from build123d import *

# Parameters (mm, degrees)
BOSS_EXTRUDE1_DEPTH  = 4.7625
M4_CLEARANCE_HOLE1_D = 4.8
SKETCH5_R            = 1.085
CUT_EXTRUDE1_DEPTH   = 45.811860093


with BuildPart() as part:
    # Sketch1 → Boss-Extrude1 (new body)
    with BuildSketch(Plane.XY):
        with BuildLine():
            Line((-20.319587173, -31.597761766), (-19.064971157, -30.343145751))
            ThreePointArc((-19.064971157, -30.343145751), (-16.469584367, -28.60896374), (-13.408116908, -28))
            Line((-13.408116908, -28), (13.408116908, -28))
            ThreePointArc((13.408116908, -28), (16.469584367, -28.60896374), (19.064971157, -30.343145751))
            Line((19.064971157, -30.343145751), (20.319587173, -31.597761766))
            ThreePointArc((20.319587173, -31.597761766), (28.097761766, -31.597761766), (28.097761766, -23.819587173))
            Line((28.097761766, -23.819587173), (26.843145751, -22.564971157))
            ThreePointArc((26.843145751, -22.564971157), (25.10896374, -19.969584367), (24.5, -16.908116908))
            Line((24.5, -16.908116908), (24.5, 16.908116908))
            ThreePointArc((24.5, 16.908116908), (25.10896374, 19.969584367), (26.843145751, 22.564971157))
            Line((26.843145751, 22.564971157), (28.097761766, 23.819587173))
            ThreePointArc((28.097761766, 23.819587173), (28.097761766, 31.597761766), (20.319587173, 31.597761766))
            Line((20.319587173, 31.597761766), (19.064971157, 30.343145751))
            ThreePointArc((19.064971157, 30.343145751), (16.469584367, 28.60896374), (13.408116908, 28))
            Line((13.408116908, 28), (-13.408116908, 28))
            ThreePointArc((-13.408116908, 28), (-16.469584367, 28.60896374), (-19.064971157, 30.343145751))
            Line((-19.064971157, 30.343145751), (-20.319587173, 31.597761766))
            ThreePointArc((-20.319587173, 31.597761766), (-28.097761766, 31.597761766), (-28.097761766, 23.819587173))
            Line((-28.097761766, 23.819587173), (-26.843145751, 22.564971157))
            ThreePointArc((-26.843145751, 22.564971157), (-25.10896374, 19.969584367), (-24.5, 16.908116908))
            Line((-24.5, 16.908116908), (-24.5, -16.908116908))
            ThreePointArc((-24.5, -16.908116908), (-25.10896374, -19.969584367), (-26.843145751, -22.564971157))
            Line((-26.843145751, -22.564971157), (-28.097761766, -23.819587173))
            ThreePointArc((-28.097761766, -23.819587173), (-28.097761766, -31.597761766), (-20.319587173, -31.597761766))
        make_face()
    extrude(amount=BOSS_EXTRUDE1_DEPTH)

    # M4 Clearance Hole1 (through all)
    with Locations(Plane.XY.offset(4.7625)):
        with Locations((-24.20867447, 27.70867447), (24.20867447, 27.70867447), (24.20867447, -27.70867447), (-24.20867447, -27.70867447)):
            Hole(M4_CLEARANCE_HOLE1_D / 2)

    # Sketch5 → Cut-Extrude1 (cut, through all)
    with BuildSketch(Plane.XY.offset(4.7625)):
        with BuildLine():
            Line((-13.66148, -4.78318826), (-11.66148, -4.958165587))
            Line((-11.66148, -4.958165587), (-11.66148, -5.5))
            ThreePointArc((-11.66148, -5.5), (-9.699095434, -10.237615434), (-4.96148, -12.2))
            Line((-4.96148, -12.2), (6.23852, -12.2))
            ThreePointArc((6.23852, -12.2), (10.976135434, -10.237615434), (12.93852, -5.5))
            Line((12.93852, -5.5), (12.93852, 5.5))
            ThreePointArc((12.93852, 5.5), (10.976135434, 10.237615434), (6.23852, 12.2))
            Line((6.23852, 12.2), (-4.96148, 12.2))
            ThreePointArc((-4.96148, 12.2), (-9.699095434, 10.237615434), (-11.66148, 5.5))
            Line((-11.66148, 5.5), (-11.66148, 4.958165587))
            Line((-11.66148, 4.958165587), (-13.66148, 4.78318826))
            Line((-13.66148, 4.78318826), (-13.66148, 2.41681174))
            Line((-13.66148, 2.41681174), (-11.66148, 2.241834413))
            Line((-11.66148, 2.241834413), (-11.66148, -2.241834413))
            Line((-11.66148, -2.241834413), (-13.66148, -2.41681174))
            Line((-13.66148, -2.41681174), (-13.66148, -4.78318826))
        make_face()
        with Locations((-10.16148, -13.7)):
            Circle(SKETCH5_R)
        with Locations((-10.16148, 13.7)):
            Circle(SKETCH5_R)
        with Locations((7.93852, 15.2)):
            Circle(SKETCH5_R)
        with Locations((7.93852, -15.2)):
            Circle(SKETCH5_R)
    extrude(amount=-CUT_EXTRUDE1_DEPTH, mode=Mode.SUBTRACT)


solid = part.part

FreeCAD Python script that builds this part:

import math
import FreeCAD as App
import Part
import Sketcher
Q = App.Units.Quantity

doc = App.newDocument("Part")
body = doc.addObject("PartDesign::Body", "Body")

# Sketch on XY plane
sketch1 = body.newObject("Sketcher::SketchObject", "Sketch")
sketch1.AttachmentSupport = (doc.getObject("XY_Plane"), [""])
sketch1.MapMode = "FlatFace"
sketch1.addGeometry([
    Part.LineSegment(App.Vector(-20.319587, -31.597762, 0), App.Vector(-19.064971, -30.343146, 0)),  # 0
    Part.ArcOfCircle(Part.Circle(App.Vector(-13.408117, -36, 0), App.Vector(0, 0, 1), 8), math.radians(90), math.radians(135)),  # 1
    Part.LineSegment(App.Vector(-13.408117, -28, 0), App.Vector(13.408117, -28, 0)),  # 2
    Part.ArcOfCircle(Part.Circle(App.Vector(13.408117, -36, 0), App.Vector(0, 0, 1), 8), math.radians(45), math.radians(90)),  # 3
    Part.LineSegment(App.Vector(19.064971, -30.343146, 0), App.Vector(20.319587, -31.597762, 0)),  # 4
    Part.ArcOfCircle(Part.Circle(App.Vector(24.208674, -27.708674, 0), App.Vector(0, 0, 1), 5.5), math.radians(-135), math.radians(45)),  # 5
    Part.LineSegment(App.Vector(28.097762, -23.819587, 0), App.Vector(26.843146, -22.564971, 0)),  # 6
    Part.ArcOfCircle(Part.Circle(App.Vector(32.5, -16.908117, 0), App.Vector(0, 0, 1), 8), math.radians(180), math.radians(225)),  # 7
    Part.LineSegment(App.Vector(24.5, -16.908117, 0), App.Vector(24.5, 16.908117, 0)),  # 8
    Part.ArcOfCircle(Part.Circle(App.Vector(32.5, 16.908117, 0), App.Vector(0, 0, 1), 8), math.radians(135), math.radians(180)),  # 9
    Part.LineSegment(App.Vector(26.843146, 22.564971, 0), App.Vector(28.097762, 23.819587, 0)),  # 10
    Part.ArcOfCircle(Part.Circle(App.Vector(24.208674, 27.708674, 0), App.Vector(0, 0, 1), 5.5), math.radians(-45), math.radians(135)),  # 11
    Part.LineSegment(App.Vector(20.319587, 31.597762, 0), App.Vector(19.064971, 30.343146, 0)),  # 12
    Part.ArcOfCircle(Part.Circle(App.Vector(13.408117, 36, 0), App.Vector(0, 0, 1), 8), math.radians(-90), math.radians(-45)),  # 13
    Part.LineSegment(App.Vector(13.408117, 28, 0), App.Vector(-13.408117, 28, 0)),  # 14
    Part.ArcOfCircle(Part.Circle(App.Vector(-13.408117, 36, 0), App.Vector(0, 0, 1), 8), math.radians(-135), math.radians(-90)),  # 15
    Part.LineSegment(App.Vector(-19.064971, 30.343146, 0), App.Vector(-20.319587, 31.597762, 0)),  # 16
    Part.ArcOfCircle(Part.Circle(App.Vector(-24.208674, 27.708674, 0), App.Vector(0, 0, 1), 5.5), math.radians(45), math.radians(225)),  # 17
    Part.LineSegment(App.Vector(-28.097762, 23.819587, 0), App.Vector(-26.843146, 22.564971, 0)),  # 18
    Part.ArcOfCircle(Part.Circle(App.Vector(-32.5, 16.908117, 0), App.Vector(0, 0, 1), 8), math.radians(0), math.radians(45)),  # 19
    Part.LineSegment(App.Vector(-24.5, 16.908117, 0), App.Vector(-24.5, -16.908117, 0)),  # 20
    Part.ArcOfCircle(Part.Circle(App.Vector(-32.5, -16.908117, 0), App.Vector(0, 0, 1), 8), math.radians(-45), math.radians(0)),  # 21
    Part.LineSegment(App.Vector(-26.843146, -22.564971, 0), App.Vector(-28.097762, -23.819587, 0)),  # 22
    Part.ArcOfCircle(Part.Circle(App.Vector(-24.208674, -27.708674, 0), App.Vector(0, 0, 1), 5.5), math.radians(135), math.radians(315)),  # 23
], False)
sketch1.addConstraint([
    Sketcher.Constraint("Tangent", 0, 2, 1, 2),
    Sketcher.Constraint("Tangent", 1, 1, 2, 1),
    Sketcher.Constraint("Tangent", 2, 2, 3, 2),
    Sketcher.Constraint("Tangent", 3, 1, 4, 1),
    Sketcher.Constraint("Tangent", 4, 2, 5, 1),
    Sketcher.Constraint("Tangent", 5, 2, 6, 1),
    Sketcher.Constraint("Tangent", 6, 2, 7, 2),
    Sketcher.Constraint("Tangent", 7, 1, 8, 1),
    Sketcher.Constraint("Tangent", 8, 2, 9, 2),
    Sketcher.Constraint("Tangent", 9, 1, 10, 1),
    Sketcher.Constraint("Tangent", 10, 2, 11, 1),
    Sketcher.Constraint("Tangent", 11, 2, 12, 1),
    Sketcher.Constraint("Tangent", 12, 2, 13, 2),
    Sketcher.Constraint("Tangent", 13, 1, 14, 1),
    Sketcher.Constraint("Tangent", 14, 2, 15, 2),
    Sketcher.Constraint("Tangent", 15, 1, 16, 1),
    Sketcher.Constraint("Tangent", 16, 2, 17, 1),
    Sketcher.Constraint("Tangent", 17, 2, 18, 1),
    Sketcher.Constraint("Tangent", 18, 2, 19, 2),
    Sketcher.Constraint("Tangent", 19, 1, 20, 1),
    Sketcher.Constraint("Tangent", 20, 2, 21, 2),
    Sketcher.Constraint("Tangent", 21, 1, 22, 1),
    Sketcher.Constraint("Tangent", 22, 2, 23, 1),
    Sketcher.Constraint("Tangent", 23, 2, 0, 1),
    Sketcher.Constraint("Horizontal", 2),
    Sketcher.Constraint("Vertical", 8),
    Sketcher.Constraint("Horizontal", 14),
    Sketcher.Constraint("Vertical", 20),
    Sketcher.Constraint("Equal", 1, 3),
    Sketcher.Constraint("Equal", 3, 7),
    Sketcher.Constraint("Equal", 7, 9),
    Sketcher.Constraint("Equal", 5, 11),
    Sketcher.Constraint("Equal", 9, 13),
    Sketcher.Constraint("Equal", 13, 15),
    Sketcher.Constraint("Equal", 11, 17),
    Sketcher.Constraint("Equal", 15, 19),
    Sketcher.Constraint("Equal", 19, 21),
    Sketcher.Constraint("Equal", 17, 23),
    Sketcher.Constraint("Symmetric", 1, 3, 13, 3, -1, 1),
    Sketcher.Constraint("Symmetric", 5, 3, 17, 3, -1, 1),
    Sketcher.Constraint("Symmetric", 7, 3, 19, 3, -1, 1),
    Sketcher.Constraint("Symmetric", 11, 3, 23, 3, -1, 1),
    Sketcher.Constraint("Symmetric", 11, 3, 17, 3, -2),
    Sketcher.Constraint("Perpendicular", 0, 4),
    Sketcher.Constraint("Parallel", 4, 6),
    Sketcher.Constraint("Perpendicular", 6, 10),
    Sketcher.Constraint("Perpendicular", 12, 16),
    Sketcher.Constraint("Perpendicular", 18, 22),
    Sketcher.Constraint("Horizontal", 9, 3, 19, 3),
    Sketcher.Constraint("Equal", 4, 6),
    Sketcher.Constraint("Radius", 1, Q("8 mm")),
    Sketcher.Constraint("Radius", 5, Q("5.5 mm")),
    Sketcher.Constraint("DistanceY", 1, 3, -1, 1, Q("36 mm")),
    Sketcher.Constraint("DistanceX", -1, 1, 7, 3, Q("32.5 mm")),
    Sketcher.Constraint("DistanceY", 4, 2, -1, 1, Q("31.597762 mm")),
])
pad1 = body.newObject("PartDesign::Pad", "Pad")
pad1.Profile = sketch1
pad1.Length = 4.7625

# Sketch on XY plane
sketch2 = body.newObject("Sketcher::SketchObject", "Sketch001")
sketch2.AttachmentSupport = (doc.getObject("XY_Plane"), [""])
sketch2.MapMode = "FlatFace"
sketch2.AttachmentOffset = App.Placement(App.Vector(0, 0, 4.7625), App.Rotation())
sketch2.addGeometry([
    Part.Circle(App.Vector(-24.208674, 27.708674, 0), App.Vector(0, 0, 1), 2.4),
    Part.Circle(App.Vector(24.208674, 27.708674, 0), App.Vector(0, 0, 1), 2.4),
    Part.Circle(App.Vector(24.208674, -27.708674, 0), App.Vector(0, 0, 1), 2.4),
    Part.Circle(App.Vector(-24.208674, -27.708674, 0), App.Vector(0, 0, 1), 2.4),
], False)
sketch2.addConstraint([
    Sketcher.Constraint("Equal", 0, 1),
    Sketcher.Constraint("Equal", 1, 2),
    Sketcher.Constraint("Equal", 2, 3),
    Sketcher.Constraint("Symmetric", 0, 3, 2, 3, -1, 1),
    Sketcher.Constraint("Symmetric", 1, 3, 3, 3, -1, 1),
    Sketcher.Constraint("Symmetric", 0, 3, 1, 3, -2),
    Sketcher.Constraint("Diameter", 0, Q("4.8 mm")),
    Sketcher.Constraint("DistanceX", 0, 3, 1, 3, Q("48.417349 mm")),
    Sketcher.Constraint("DistanceY", 2, 3, 1, 3, Q("55.417349 mm")),
])
doc.recompute()
hole = body.newObject("PartDesign::Hole", "Hole")
hole.Profile = sketch2
hole.ThreadType = "None"
hole.Diameter = 4.8
hole.DepthType = "ThroughAll"

# Sketch on XY plane
sketch3 = body.newObject("Sketcher::SketchObject", "Sketch002")
sketch3.AttachmentSupport = (doc.getObject("XY_Plane"), [""])
sketch3.MapMode = "FlatFace"
sketch3.AttachmentOffset = App.Placement(App.Vector(0, 0, 4.7625), App.Rotation())
sketch3.addGeometry([
    Part.LineSegment(App.Vector(-13.66148, -4.783188, 0), App.Vector(-11.66148, -4.958166, 0)),  # 0
    Part.LineSegment(App.Vector(-11.66148, -4.958166, 0), App.Vector(-11.66148, -5.5, 0)),  # 1
    Part.ArcOfCircle(Part.Circle(App.Vector(-4.96148, -5.5, 0), App.Vector(0, 0, 1), 6.7), math.radians(180), math.radians(270)),  # 2
    Part.LineSegment(App.Vector(-4.96148, -12.2, 0), App.Vector(6.23852, -12.2, 0)),  # 3
    Part.ArcOfCircle(Part.Circle(App.Vector(6.23852, -5.5, 0), App.Vector(0, 0, 1), 6.7), math.radians(-90), math.radians(0)),  # 4
    Part.LineSegment(App.Vector(12.93852, -5.5, 0), App.Vector(12.93852, 5.5, 0)),  # 5
    Part.ArcOfCircle(Part.Circle(App.Vector(6.23852, 5.5, 0), App.Vector(0, 0, 1), 6.7), math.radians(0), math.radians(90)),  # 6
    Part.LineSegment(App.Vector(6.23852, 12.2, 0), App.Vector(-4.96148, 12.2, 0)),  # 7
    Part.ArcOfCircle(Part.Circle(App.Vector(-4.96148, 5.5, 0), App.Vector(0, 0, 1), 6.7), math.radians(90), math.radians(180)),  # 8
    Part.LineSegment(App.Vector(-11.66148, 5.5, 0), App.Vector(-11.66148, 4.958166, 0)),  # 9
    Part.LineSegment(App.Vector(-11.66148, 4.958166, 0), App.Vector(-13.66148, 4.783188, 0)),  # 10
    Part.LineSegment(App.Vector(-13.66148, 4.783188, 0), App.Vector(-13.66148, 2.416812, 0)),  # 11
    Part.LineSegment(App.Vector(-13.66148, 2.416812, 0), App.Vector(-11.66148, 2.241834, 0)),  # 12
    Part.LineSegment(App.Vector(-11.66148, 2.241834, 0), App.Vector(-11.66148, -2.241834, 0)),  # 13
    Part.LineSegment(App.Vector(-11.66148, -2.241834, 0), App.Vector(-13.66148, -2.416812, 0)),  # 14
    Part.LineSegment(App.Vector(-13.66148, -2.416812, 0), App.Vector(-13.66148, -4.783188, 0)),  # 15
    Part.Circle(App.Vector(-10.16148, -13.7, 0), App.Vector(0, 0, 1), 1.085),  # 16
    Part.Circle(App.Vector(-10.16148, 13.7, 0), App.Vector(0, 0, 1), 1.085),  # 17
    Part.Circle(App.Vector(7.93852, 15.2, 0), App.Vector(0, 0, 1), 1.085),  # 18
    Part.Circle(App.Vector(7.93852, -15.2, 0), App.Vector(0, 0, 1), 1.085),  # 19
], False)
sketch3.addConstraint([
    Sketcher.Constraint("Coincident", 0, 2, 1, 1),
    Sketcher.Constraint("Tangent", 1, 2, 2, 1),
    Sketcher.Constraint("Tangent", 2, 2, 3, 1),
    Sketcher.Constraint("Tangent", 3, 2, 4, 1),
    Sketcher.Constraint("Tangent", 4, 2, 5, 1),
    Sketcher.Constraint("Tangent", 5, 2, 6, 1),
    Sketcher.Constraint("Tangent", 6, 2, 7, 1),
    Sketcher.Constraint("Tangent", 7, 2, 8, 1),
    Sketcher.Constraint("Tangent", 8, 2, 9, 1),
    Sketcher.Constraint("Coincident", 9, 2, 10, 1),
    Sketcher.Constraint("Coincident", 10, 2, 11, 1),
    Sketcher.Constraint("Coincident", 11, 2, 12, 1),
    Sketcher.Constraint("Coincident", 12, 2, 13, 1),
    Sketcher.Constraint("Coincident", 13, 2, 14, 1),
    Sketcher.Constraint("Coincident", 14, 2, 15, 1),
    Sketcher.Constraint("Coincident", 15, 2, 0, 1),
    Sketcher.Constraint("Vertical", 1),
    Sketcher.Constraint("Horizontal", 3),
    Sketcher.Constraint("Vertical", 5),
    Sketcher.Constraint("Horizontal", 7),
    Sketcher.Constraint("Vertical", 9),
    Sketcher.Constraint("Vertical", 11),
    Sketcher.Constraint("Vertical", 13),
    Sketcher.Constraint("Vertical", 15),
    Sketcher.Constraint("Equal", 2, 4),
    Sketcher.Constraint("Equal", 4, 6),
    Sketcher.Constraint("Equal", 6, 8),
    Sketcher.Constraint("Equal", 16, 17),
    Sketcher.Constraint("Equal", 17, 18),
    Sketcher.Constraint("Equal", 18, 19),
    Sketcher.Constraint("Symmetric", 2, 3, 8, 3, -1),
    Sketcher.Constraint("Symmetric", 16, 3, 17, 3, -1),
    Sketcher.Constraint("Symmetric", 18, 3, 19, 3, -1),
    Sketcher.Constraint("Symmetric", 11, 2, 14, 2, -1),
    Sketcher.Constraint("Parallel", 0, 12),
    Sketcher.Constraint("Parallel", 10, 14),
    Sketcher.Constraint("Vertical", 9, 2, 12, 2),
    Sketcher.Constraint("Equal", 1, 9),
    Sketcher.Constraint("Equal", 11, 15),
    Sketcher.Constraint("Radius", 2, Q("6.7 mm")),
    Sketcher.Constraint("Diameter", 16, Q("2.17 mm")),
    Sketcher.Constraint("DistanceY", 5, 1, 5, 2, Q("11 mm")),
    Sketcher.Constraint("Angle", 0, Q("-5 deg")),
    Sketcher.Constraint("DistanceX", 3, 1, 3, 2, Q("11.2 mm")),
    Sketcher.Constraint("DistanceY", 19, 3, 3, 2, Q("3 mm")),
    Sketcher.Constraint("DistanceX", 19, 3, 4, 2, Q("5 mm")),
    Sketcher.Constraint("DistanceX", 10, 2, 9, 2, Q("2 mm")),
    Sketcher.Constraint("DistanceY", 16, 3, -1, 1, Q("13.7 mm")),
    Sketcher.Constraint("DistanceX", 16, 3, 2, 3, Q("5.2 mm")),
    Sketcher.Constraint("DistanceY", 0, 2, 12, 2, Q("7.2 mm")),
    Sketcher.Constraint("DistanceY", 13, 2, 13, 1, Q("4.483669 mm")),
    Sketcher.Constraint("DistanceX", 2, 3, -1, 1, Q("4.96148 mm")),
])
pocket1 = body.newObject("PartDesign::Pocket", "Pocket")
pocket1.Profile = sketch3
pocket1.Type = "ThroughAll"

doc.recompute()
